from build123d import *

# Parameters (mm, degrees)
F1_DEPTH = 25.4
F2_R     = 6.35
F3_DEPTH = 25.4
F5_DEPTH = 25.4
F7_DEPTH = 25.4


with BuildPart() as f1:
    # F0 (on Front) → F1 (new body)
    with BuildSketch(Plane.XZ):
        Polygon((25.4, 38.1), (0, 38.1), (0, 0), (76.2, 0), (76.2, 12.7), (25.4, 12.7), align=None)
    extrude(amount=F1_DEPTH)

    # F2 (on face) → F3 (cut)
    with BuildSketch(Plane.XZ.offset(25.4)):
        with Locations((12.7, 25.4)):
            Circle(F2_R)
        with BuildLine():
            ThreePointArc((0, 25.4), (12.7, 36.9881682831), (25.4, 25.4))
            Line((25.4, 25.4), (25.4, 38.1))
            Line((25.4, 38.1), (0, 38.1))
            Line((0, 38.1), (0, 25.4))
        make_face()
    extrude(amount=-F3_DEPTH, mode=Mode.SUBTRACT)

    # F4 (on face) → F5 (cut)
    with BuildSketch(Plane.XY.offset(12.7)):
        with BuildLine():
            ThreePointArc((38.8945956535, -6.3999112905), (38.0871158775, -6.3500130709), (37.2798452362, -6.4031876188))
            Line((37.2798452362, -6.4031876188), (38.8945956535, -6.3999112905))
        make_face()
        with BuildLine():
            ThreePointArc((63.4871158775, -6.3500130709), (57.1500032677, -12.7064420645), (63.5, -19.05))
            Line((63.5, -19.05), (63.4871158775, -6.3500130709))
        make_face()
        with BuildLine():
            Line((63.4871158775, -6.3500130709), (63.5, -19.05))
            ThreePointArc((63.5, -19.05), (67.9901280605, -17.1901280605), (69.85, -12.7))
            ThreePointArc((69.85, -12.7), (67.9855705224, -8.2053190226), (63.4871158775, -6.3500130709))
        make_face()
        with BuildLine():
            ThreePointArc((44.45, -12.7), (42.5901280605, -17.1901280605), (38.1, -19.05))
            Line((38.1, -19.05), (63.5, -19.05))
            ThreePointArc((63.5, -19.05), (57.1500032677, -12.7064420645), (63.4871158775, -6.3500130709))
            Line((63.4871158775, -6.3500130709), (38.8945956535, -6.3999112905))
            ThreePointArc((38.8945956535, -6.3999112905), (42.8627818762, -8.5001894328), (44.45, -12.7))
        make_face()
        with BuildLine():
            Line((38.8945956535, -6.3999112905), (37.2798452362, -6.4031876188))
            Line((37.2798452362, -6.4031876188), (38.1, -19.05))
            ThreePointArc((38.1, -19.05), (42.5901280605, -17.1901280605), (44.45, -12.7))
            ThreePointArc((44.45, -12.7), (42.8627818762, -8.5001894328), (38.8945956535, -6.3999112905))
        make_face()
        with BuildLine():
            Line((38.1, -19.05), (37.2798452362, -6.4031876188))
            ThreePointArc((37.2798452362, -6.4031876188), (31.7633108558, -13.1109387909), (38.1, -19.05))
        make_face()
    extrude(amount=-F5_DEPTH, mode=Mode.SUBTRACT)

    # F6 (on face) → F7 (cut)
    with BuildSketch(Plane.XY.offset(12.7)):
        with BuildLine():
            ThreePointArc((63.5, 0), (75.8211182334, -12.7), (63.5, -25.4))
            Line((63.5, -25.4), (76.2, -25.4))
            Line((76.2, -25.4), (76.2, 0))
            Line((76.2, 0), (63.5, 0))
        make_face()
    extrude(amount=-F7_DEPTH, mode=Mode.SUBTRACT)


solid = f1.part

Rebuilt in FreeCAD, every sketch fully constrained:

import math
import FreeCAD as App
import Part
import Sketcher
from FreeCAD import Vector
Q = App.Units.Quantity


def add_polygon(sketch, points):
    """Adds a closed chain of lines whose ends are joined by coincident constraints."""
    first, n = sketch.GeometryCount, len(points)
    for a, b in zip(points, points[1:] + points[:1]):
        sketch.addGeometry(Part.LineSegment(App.Vector(*a, 0), App.Vector(*b, 0)), False)
    for i in range(n):
        sketch.addConstraint(Sketcher.Constraint("Coincident", first + i, 2, first + (i + 1) % n, 1))

doc = App.newDocument("Part")
body = doc.addObject("PartDesign::Body", "Body")

# Sketch on XZ plane
sketch1 = body.newObject("Sketcher::SketchObject", "Sketch")
sketch1.AttachmentSupport = (doc.getObject("XZ_Plane"), [""])
sketch1.MapMode = "FlatFace"
add_polygon(sketch1, [(25.4, 38.1), (0, 38.1), (0, 0), (76.2, 0), (76.2, 12.7), (25.4, 12.7)])  # lines 0-5
sketch1.addConstraint([
    Sketcher.Constraint("Horizontal", 0),
    Sketcher.Constraint("Vertical", 1),
    Sketcher.Constraint("Horizontal", 2),
    Sketcher.Constraint("Vertical", 3),
    Sketcher.Constraint("Horizontal", 4),
    Sketcher.Constraint("Vertical", 5),
    Sketcher.Constraint("Coincident", 1, 2, -1, 1),
    Sketcher.Constraint("Equal", 0, 5),
    Sketcher.Constraint("DistanceX", 0, 2, 0, 1, Q("1 in")),
    Sketcher.Constraint("DistanceX", 2, 1, 2, 2, Q("3 in")),
    Sketcher.Constraint("DistanceY", 1, 2, 1, 1, Q("1.5 in")),
])
pad1 = body.newObject("PartDesign::Pad", "Pad")
pad1.Profile = sketch1
pad1.Length = Q("1 in")

# Sketch on XZ plane
sketch2 = body.newObject("Sketcher::SketchObject", "Sketch001")
sketch2.AttachmentSupport = (doc.getObject("XZ_Plane"), [""])
sketch2.MapMode = "FlatFace"
sketch2.AttachmentOffset = App.Placement(Vector(0, 0, 1 * 25.4), App.Rotation())
sketch2.addGeometry([
    Part.Circle(Vector(12.7, 25.4, 0), Vector(0, 0, 1), 6.35),  # 0
    Part.ArcOfCircle(Part.Circle(Vector(12.7, 24.234831, 0), Vector(0, 0, 1), 12.753338), math.radians(5.241962), math.radians(174.758038)),  # 1
    Part.LineSegment(Vector(25.4, 25.4, 0), Vector(25.4, 38.1, 0)),  # 2
    Part.LineSegment(Vector(25.4, 38.1, 0), Vector(0, 38.1, 0)),  # 3
    Part.LineSegment(Vector(0, 38.1, 0), Vector(0, 25.4, 0)),  # 4
], False)
sketch2.addConstraint([
    Sketcher.Constraint("Coincident", 1, 1, 2, 1),
    Sketcher.Constraint("Coincident", 2, 2, 3, 1),
    Sketcher.Constraint("Coincident", 3, 2, 4, 1),
    Sketcher.Constraint("Coincident", 4, 2, 1, 2),
    Sketcher.Constraint("Vertical", 2),
    Sketcher.Constraint("Horizontal", 3),
    Sketcher.Constraint("Vertical", 4),
    Sketcher.Constraint("PointOnObject", 3, 2, -2),
    Sketcher.Constraint("Horizontal", 0, 3, 1, 1),
    Sketcher.Constraint("Horizontal", 1, 1, 4, 2),
    Sketcher.Constraint("Vertical", 0, 3, 1, 3),
    Sketcher.Constraint("Diameter", 0, Q("0.5 in")),
    Sketcher.Constraint("DistanceX", 3, 2, 3, 1, Q("1 in")),
    Sketcher.Constraint("DistanceY", 2, 1, 2, 2, Q("0.5 in")),
    Sketcher.Constraint("DistanceY", -1, 1, 0, 3, Q("1 in")),
    Sketcher.Constraint("Radius", 1, Q("0.5020999 in")),
])
pocket1 = body.newObject("PartDesign::Pocket", "Pocket")
pocket1.Profile = sketch2
pocket1.Length = Q("1 in")

# Sketch on XY plane
sketch3 = body.newObject("Sketcher::SketchObject", "Sketch002")
sketch3.AttachmentSupport = (doc.getObject("XY_Plane"), [""])
sketch3.MapMode = "FlatFace"
sketch3.AttachmentOffset = App.Placement(Vector(0, 0, 0.5 * 25.4), App.Rotation())
sketch3.addGeometry([
    Part.ArcOfCircle(Part.Circle(Vector(38.1, -12.7, 0), Vector(0, 0, 1), 6.35), math.radians(82.811554), math.radians(97.420952)),  # 0
    Part.ArcOfCircle(Part.Circle(Vector(38.1, -12.7, 0), Vector(0, 0, 1), 6.35), math.radians(97.420952), math.radians(270)),  # 1
    Part.LineSegment(Vector(38.1, -19.05, 0), Vector(63.5, -19.05, 0)),  # 2
    Part.ArcOfCircle(Part.Circle(Vector(63.5, -12.7, 0), Vector(0, 0, 1), 6.35), math.radians(-90), math.radians(0)),  # 3
    Part.ArcOfCircle(Part.Circle(Vector(63.5, -12.7, 0), Vector(0, 0, 1), 6.35), math.radians(0), math.radians(90.116253)),  # 4
    Part.LineSegment(Vector(63.487116, -6.350013, 0), Vector(38.894596, -6.399911, 0)),  # 5
], False)
sketch3.addConstraint([
    Sketcher.Constraint("Tangent", 0, 2, 1, 1),
    Sketcher.Constraint("Tangent", 1, 2, 2, 1),
    Sketcher.Constraint("Tangent", 2, 2, 3, 1),
    Sketcher.Constraint("Tangent", 3, 2, 4, 1),
    Sketcher.Constraint("Tangent", 4, 2, 5, 1),
    Sketcher.Constraint("Coincident", 5, 2, 0, 1),
    Sketcher.Constraint("Horizontal", 2),
    Sketcher.Constraint("Equal", 0, 1),
    Sketcher.Constraint("Equal", 1, 3),
    Sketcher.Constraint("Equal", 3, 4),
    Sketcher.Constraint("Horizontal", 4, 3, 3, 2),
    Sketcher.Constraint("DistanceX", 2, 1, 2, 2, Q("1 in")),
    Sketcher.Constraint("Radius", 0, Q("0.25 in")),
    Sketcher.Constraint("DistanceX", -1, 1, 0, 3, Q("1.5 in")),
    Sketcher.Constraint("DistanceY", 0, 3, -1, 1, Q("0.5 in")),
    Sketcher.Constraint("DistanceY", 5, 2, 4, 2, 0.049898),
    Sketcher.Constraint("DistanceX", 0, 2, 5, 2, 1.61475),
])
pocket2 = body.newObject("PartDesign::Pocket", "Pocket001")
pocket2.Profile = sketch3
pocket2.Length = Q("1 in")

# Sketch on XY plane
sketch4 = body.newObject("Sketcher::SketchObject", "Sketch003")
sketch4.AttachmentSupport = (doc.getObject("XY_Plane"), [""])
sketch4.MapMode = "FlatFace"
sketch4.AttachmentOffset = App.Placement(Vector(0, 0, 0.5 * 25.4), App.Rotation())
sketch4.addGeometry([
    Part.ArcOfCircle(Part.Circle(Vector(63.115293, -12.7, 0), Vector(0, 0, 1), 12.705825), math.radians(-88.264932), math.radians(88.264932)),
    Part.LineSegment(Vector(63.5, -25.4, 0), Vector(76.2, -25.4, 0)),
    Part.LineSegment(Vector(76.2, -25.4, 0), Vector(76.2, 0, 0)),
    Part.LineSegment(Vector(76.2, 0, 0), Vector(63.5, 0, 0)),
], False)
sketch4.addConstraint([
    Sketcher.Constraint("Coincident", 0, 1, 1, 1),
    Sketcher.Constraint("Coincident", 1, 2, 2, 1),
    Sketcher.Constraint("Coincident", 2, 2, 3, 1),
    Sketcher.Constraint("Coincident", 3, 2, 0, 2),
    Sketcher.Constraint("Horizontal", 1),
    Sketcher.Constraint("Vertical", 2),
    Sketcher.Constraint("Horizontal", 3),
    Sketcher.Constraint("PointOnObject", 2, 2, -1),
    Sketcher.Constraint("Vertical", 0, 1, 3, 2),
    Sketcher.Constraint("DistanceY", 2, 1, 2, 2, Q("1 in")),
    Sketcher.Constraint("DistanceX", 1, 1, 1, 2, Q("0.5 in")),
    Sketcher.Constraint("DistanceX", -1, 1, 1, 2, Q("3 in")),
    Sketcher.Constraint("Radius", 0, 12.705825),
])
pocket3 = body.newObject("PartDesign::Pocket", "Pocket002")
pocket3.Profile = sketch4
pocket3.Length = Q("1 in")

doc.recompute()
